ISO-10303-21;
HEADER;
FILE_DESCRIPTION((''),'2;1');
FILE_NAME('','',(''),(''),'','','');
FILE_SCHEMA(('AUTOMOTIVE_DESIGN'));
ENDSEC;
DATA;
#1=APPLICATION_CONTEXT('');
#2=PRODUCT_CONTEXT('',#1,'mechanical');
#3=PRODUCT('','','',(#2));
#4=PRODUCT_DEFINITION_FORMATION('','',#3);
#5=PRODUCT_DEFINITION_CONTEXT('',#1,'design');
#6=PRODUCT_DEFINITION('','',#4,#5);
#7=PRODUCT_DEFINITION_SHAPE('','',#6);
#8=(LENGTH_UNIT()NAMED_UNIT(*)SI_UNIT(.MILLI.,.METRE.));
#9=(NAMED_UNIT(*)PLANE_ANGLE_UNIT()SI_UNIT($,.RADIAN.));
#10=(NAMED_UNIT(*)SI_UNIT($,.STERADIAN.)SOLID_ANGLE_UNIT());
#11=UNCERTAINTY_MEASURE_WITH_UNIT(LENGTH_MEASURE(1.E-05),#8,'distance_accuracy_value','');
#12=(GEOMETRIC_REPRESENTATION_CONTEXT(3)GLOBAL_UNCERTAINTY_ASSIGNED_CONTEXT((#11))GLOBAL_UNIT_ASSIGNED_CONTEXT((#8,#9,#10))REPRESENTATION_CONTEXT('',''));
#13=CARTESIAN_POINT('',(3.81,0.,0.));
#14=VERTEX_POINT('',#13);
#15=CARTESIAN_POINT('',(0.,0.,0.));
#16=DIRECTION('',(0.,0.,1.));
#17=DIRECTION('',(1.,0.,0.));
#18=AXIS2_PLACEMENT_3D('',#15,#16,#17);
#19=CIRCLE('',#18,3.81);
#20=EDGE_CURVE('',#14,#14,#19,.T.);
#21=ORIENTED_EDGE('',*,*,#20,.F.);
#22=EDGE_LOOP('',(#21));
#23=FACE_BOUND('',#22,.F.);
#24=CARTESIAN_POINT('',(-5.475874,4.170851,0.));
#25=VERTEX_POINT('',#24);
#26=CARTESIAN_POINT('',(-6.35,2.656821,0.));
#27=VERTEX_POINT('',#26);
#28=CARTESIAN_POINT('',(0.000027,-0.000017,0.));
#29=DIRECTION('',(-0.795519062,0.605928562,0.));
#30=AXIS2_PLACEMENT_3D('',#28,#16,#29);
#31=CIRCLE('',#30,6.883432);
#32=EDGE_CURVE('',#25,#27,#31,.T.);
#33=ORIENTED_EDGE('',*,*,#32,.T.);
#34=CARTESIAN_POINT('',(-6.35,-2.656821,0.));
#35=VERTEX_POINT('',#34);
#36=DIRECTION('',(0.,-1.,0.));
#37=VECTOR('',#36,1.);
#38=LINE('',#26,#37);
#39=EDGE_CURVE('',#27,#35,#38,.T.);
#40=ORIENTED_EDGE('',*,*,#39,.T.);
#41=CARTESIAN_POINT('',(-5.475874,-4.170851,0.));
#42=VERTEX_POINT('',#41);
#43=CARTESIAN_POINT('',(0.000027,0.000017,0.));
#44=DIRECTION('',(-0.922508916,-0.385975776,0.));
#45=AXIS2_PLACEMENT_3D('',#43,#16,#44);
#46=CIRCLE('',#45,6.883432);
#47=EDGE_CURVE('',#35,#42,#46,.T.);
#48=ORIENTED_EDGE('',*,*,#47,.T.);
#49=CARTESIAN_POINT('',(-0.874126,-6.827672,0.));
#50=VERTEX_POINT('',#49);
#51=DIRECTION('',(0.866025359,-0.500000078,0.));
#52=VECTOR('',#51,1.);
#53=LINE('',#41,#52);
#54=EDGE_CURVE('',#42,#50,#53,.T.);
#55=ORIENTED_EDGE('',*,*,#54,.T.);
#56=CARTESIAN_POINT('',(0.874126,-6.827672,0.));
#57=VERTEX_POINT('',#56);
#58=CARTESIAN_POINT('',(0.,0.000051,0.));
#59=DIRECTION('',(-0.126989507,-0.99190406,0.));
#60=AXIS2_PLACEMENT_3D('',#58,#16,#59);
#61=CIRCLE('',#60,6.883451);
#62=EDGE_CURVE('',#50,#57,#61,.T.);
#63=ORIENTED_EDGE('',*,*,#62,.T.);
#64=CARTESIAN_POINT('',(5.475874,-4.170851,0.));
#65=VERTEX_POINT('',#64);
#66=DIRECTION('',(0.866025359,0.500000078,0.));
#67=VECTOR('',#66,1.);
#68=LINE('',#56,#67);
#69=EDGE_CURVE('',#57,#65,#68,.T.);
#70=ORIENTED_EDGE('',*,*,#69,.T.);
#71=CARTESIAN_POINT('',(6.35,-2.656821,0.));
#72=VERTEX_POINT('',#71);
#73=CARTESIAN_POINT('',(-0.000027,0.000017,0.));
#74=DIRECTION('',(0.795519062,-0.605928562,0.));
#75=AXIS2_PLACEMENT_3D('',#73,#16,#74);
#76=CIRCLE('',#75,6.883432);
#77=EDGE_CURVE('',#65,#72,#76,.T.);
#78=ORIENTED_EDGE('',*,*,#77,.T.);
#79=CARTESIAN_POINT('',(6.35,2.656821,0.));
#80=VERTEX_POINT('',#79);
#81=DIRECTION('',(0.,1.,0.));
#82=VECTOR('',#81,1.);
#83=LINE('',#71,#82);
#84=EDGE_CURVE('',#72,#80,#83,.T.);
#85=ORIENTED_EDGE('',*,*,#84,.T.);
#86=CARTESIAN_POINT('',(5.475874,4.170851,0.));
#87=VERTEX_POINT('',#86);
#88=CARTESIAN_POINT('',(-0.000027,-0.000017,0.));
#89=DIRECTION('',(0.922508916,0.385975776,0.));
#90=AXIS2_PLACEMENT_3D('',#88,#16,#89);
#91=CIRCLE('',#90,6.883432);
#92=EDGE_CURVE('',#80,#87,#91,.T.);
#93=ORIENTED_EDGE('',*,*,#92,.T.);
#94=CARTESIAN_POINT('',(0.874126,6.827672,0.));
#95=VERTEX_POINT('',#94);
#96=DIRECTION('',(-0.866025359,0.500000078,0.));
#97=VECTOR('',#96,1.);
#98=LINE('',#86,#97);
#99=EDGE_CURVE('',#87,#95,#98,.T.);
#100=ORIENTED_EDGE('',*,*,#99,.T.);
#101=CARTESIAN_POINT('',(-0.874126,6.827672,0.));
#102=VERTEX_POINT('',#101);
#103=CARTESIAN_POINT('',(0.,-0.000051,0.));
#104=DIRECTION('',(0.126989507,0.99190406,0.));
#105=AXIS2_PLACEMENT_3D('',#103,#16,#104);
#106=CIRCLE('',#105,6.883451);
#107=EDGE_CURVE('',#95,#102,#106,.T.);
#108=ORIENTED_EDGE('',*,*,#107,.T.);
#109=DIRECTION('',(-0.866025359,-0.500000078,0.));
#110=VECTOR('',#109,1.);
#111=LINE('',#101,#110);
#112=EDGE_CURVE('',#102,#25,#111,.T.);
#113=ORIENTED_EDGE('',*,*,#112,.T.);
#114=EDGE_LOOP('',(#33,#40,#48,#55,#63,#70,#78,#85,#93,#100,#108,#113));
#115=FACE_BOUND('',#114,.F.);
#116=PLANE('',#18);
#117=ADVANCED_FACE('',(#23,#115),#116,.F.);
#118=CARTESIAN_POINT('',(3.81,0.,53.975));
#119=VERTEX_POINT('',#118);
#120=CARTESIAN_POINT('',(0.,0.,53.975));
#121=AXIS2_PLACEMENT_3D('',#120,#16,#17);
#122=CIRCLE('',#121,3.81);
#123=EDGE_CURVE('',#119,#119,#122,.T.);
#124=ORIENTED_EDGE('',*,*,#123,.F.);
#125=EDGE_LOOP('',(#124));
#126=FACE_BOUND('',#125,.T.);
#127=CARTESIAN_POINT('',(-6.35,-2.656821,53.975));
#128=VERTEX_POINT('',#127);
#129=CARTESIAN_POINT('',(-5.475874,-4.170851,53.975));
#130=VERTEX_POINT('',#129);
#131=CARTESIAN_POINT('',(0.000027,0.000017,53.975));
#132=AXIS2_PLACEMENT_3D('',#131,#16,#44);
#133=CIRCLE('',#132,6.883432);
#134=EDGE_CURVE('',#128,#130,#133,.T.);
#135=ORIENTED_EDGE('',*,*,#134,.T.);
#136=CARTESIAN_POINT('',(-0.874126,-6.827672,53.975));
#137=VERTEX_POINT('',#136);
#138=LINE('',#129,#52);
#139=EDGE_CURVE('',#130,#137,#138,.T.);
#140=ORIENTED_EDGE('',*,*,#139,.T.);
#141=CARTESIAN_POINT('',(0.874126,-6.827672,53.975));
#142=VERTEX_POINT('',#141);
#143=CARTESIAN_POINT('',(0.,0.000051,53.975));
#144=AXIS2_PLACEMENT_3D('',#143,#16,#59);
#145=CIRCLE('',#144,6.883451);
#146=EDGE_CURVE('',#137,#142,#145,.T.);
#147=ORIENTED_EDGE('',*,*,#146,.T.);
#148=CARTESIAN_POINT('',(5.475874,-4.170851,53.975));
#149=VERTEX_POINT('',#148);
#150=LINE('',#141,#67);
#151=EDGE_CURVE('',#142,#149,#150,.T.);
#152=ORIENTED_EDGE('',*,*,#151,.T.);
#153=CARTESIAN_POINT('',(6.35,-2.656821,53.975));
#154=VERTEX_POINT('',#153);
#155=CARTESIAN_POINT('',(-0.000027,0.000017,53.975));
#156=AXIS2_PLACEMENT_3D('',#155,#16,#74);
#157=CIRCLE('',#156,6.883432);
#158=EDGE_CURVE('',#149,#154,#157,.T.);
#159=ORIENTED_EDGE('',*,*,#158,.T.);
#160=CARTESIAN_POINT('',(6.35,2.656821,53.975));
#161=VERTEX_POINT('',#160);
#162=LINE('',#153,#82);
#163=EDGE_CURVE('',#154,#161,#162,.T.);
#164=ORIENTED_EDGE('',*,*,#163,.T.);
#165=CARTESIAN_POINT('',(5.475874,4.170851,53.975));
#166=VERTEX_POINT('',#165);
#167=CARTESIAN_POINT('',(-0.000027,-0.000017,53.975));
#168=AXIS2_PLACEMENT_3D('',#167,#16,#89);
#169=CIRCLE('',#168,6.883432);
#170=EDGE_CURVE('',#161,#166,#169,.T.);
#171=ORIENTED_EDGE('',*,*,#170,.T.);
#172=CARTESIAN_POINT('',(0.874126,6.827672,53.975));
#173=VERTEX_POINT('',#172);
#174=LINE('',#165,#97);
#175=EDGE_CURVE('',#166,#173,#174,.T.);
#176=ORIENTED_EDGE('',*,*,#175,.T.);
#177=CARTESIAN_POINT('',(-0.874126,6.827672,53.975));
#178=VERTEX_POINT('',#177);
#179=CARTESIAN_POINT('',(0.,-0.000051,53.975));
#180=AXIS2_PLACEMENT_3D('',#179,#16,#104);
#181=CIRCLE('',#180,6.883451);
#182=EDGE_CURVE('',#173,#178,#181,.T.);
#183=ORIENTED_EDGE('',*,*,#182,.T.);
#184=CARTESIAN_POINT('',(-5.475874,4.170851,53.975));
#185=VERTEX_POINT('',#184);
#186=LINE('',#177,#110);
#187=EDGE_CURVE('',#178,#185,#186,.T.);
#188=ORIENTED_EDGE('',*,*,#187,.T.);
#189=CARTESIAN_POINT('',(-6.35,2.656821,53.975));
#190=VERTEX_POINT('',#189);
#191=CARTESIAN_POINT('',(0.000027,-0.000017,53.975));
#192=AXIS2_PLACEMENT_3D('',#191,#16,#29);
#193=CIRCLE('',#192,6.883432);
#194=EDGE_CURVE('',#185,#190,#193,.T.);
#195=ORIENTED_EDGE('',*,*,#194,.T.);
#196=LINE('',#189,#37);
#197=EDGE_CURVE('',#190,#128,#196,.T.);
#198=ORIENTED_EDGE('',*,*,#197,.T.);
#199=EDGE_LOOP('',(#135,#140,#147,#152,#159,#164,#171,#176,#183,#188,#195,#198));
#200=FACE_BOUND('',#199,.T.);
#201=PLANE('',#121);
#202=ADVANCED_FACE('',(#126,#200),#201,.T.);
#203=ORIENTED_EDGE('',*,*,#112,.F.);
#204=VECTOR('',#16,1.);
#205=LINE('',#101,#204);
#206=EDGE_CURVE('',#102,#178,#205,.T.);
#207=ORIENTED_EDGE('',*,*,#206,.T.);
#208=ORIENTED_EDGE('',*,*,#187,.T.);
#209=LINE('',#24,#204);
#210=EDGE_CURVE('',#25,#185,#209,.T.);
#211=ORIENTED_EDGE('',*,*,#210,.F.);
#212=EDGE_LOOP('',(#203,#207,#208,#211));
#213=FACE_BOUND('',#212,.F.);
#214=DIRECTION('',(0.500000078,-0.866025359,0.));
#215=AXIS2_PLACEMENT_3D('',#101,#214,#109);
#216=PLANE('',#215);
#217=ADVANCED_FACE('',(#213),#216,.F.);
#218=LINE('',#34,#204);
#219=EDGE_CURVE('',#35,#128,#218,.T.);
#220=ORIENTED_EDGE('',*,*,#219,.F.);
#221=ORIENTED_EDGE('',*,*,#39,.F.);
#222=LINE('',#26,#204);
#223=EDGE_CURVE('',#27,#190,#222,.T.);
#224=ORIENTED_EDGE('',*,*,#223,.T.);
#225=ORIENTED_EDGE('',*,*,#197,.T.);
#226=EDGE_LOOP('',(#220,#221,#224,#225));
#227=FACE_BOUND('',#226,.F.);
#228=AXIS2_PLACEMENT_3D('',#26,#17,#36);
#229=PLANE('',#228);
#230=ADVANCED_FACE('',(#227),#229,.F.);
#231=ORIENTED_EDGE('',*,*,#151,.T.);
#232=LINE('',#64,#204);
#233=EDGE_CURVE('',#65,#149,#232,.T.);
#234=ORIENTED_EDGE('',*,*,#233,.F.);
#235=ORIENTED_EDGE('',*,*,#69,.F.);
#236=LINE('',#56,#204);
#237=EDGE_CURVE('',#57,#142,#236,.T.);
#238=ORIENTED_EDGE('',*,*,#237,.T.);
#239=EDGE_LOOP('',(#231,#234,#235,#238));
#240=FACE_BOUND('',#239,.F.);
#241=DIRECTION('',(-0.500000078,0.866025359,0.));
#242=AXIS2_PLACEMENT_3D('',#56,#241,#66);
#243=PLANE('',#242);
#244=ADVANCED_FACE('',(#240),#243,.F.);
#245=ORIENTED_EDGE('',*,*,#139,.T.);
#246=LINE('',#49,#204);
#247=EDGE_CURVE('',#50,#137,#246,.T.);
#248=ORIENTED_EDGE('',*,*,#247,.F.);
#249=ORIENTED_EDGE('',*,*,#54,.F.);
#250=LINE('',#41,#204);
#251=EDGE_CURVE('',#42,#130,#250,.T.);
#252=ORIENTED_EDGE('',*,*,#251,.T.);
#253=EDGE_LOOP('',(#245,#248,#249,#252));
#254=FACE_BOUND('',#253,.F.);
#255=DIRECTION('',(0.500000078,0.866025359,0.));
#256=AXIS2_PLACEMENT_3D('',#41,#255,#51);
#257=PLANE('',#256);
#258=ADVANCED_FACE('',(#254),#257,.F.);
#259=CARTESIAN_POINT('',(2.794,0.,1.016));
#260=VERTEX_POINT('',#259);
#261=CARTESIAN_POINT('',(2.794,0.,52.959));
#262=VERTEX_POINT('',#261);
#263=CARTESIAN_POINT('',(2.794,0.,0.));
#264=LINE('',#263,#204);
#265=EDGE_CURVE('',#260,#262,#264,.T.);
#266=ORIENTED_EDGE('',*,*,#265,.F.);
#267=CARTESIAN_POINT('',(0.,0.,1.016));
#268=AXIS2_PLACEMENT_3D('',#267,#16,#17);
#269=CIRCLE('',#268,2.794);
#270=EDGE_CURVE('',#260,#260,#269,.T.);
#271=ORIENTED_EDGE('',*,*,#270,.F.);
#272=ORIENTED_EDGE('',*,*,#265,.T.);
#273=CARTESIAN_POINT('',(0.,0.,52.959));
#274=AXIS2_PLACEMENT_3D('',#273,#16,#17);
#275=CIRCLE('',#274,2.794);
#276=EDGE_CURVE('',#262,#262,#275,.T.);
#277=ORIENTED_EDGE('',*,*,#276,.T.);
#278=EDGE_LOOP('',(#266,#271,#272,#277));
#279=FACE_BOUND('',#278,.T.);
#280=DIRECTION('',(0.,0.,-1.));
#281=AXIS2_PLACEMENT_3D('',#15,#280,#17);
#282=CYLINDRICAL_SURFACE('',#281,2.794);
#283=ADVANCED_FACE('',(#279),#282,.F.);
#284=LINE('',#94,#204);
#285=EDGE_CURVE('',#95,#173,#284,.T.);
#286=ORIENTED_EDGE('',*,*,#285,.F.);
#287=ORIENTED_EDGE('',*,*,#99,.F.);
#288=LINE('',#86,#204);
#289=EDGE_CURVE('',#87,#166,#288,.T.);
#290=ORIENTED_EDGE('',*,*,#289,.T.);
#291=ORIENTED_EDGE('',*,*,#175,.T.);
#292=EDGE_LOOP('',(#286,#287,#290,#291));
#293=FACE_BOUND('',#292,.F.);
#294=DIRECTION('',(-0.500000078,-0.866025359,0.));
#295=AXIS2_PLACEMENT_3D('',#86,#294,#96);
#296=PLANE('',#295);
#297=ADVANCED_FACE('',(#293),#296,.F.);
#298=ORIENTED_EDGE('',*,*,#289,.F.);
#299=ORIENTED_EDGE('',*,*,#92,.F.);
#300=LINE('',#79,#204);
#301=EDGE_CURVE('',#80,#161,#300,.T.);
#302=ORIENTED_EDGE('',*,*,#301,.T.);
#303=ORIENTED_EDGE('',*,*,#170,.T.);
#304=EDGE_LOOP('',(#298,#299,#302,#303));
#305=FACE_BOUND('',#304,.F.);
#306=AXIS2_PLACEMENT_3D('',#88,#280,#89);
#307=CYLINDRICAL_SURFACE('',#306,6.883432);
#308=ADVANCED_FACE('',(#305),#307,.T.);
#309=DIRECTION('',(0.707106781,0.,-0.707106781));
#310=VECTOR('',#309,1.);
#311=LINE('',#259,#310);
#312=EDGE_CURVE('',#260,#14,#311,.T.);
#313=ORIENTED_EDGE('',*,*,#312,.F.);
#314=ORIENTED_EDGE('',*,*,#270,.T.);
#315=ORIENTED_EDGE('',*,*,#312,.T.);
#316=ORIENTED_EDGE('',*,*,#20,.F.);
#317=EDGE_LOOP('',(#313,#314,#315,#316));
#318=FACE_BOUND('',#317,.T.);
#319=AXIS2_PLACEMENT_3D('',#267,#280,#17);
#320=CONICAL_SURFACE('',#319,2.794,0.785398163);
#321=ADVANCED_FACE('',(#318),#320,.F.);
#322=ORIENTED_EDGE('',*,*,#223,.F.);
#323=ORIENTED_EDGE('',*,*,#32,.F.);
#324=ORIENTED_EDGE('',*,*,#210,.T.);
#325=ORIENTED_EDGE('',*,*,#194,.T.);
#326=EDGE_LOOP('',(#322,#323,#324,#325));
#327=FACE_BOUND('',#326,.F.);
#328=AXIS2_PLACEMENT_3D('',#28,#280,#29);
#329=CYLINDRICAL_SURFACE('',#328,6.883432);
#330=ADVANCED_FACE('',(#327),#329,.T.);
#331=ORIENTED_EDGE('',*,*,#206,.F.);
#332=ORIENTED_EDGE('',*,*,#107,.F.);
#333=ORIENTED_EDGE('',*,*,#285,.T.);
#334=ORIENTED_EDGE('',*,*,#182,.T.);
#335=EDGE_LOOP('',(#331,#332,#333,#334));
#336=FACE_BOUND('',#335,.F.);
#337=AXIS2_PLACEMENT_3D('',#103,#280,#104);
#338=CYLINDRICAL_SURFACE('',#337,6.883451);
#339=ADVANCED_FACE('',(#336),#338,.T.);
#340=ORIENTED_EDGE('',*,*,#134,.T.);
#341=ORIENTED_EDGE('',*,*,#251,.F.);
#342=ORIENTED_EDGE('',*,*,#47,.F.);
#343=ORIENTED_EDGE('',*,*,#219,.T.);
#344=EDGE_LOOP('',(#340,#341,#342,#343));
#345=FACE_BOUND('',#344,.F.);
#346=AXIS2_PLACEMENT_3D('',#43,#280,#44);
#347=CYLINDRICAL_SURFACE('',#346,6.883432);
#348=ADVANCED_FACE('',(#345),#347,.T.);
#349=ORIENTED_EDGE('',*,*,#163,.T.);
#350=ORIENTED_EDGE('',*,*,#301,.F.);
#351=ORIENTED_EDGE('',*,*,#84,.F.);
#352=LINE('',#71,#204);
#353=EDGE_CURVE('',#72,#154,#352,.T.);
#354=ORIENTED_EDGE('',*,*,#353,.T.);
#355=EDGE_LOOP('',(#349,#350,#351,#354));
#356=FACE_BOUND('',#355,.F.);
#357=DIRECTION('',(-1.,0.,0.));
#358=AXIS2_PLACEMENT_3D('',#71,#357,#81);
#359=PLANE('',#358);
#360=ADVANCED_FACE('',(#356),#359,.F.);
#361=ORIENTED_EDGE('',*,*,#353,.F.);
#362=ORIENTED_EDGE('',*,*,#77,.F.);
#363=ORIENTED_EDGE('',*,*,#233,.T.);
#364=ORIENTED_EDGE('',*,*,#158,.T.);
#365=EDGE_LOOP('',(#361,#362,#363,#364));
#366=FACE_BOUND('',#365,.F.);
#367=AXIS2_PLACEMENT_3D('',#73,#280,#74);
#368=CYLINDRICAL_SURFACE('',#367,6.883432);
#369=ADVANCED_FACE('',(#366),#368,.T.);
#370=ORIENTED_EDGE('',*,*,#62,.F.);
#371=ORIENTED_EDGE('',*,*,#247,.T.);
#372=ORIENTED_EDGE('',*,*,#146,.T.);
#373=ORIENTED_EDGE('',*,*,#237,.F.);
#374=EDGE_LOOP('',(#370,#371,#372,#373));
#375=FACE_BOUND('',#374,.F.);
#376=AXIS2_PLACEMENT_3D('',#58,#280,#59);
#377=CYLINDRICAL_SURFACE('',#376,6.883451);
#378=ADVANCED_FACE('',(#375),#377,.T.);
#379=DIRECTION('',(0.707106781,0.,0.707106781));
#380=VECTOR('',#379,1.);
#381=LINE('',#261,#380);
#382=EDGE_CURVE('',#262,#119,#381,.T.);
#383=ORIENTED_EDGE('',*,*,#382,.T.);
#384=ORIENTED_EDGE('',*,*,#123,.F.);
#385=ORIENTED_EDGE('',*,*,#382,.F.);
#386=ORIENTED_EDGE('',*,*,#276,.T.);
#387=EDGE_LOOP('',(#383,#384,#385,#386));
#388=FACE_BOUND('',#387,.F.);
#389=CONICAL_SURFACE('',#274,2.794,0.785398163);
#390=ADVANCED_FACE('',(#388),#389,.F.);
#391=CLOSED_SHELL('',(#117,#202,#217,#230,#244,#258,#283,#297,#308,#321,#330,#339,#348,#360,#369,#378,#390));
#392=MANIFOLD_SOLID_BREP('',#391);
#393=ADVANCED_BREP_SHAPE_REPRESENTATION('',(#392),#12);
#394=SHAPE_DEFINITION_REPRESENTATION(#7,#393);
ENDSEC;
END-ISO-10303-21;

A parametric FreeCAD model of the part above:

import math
import FreeCAD as App
import Part
import Sketcher
Q = App.Units.Quantity


def edges_at(feature, points):
    """Names of the edges that pass closest to the given points."""
    edges = feature.Shape.Edges
    near = lambda p: min(range(len(edges)), key=lambda i: edges[i].distToShape(Part.Vertex(*p))[0])
    return sorted({f"Edge{near(p) + 1}" for p in points})

doc = App.newDocument("Part")
params = doc.addObject("Spreadsheet::Sheet", "Params")
for row, (alias, value) in enumerate([
    ("sketch1_diameter", "0.22 in"),
    ("pad1_length", "2.125 in"),
    ("chamfer_size", "0.04 in"),
], start=1):
    params.set(f"A{row}", alias)
    params.set(f"B{row}", "=" + value)
    params.setAlias(f"B{row}", alias)

body = doc.addObject("PartDesign::Body", "Body")

# Sketch on XY plane
sketch1 = body.newObject("Sketcher::SketchObject", "Sketch")
sketch1.AttachmentSupport = (doc.getObject("XY_Plane"), [""])
sketch1.MapMode = "FlatFace"
sketch1.addGeometry(Part.LineSegment(App.Vector(6.35, -2.656821, 0), App.Vector(6.35, 2.656821, 0)), False)
sketch1.addGeometry(Part.ArcOfCircle(Part.Circle(App.Vector(-0.000027, -0.000017, 0), App.Vector(0, 0, 1), 6.883432), math.radians(22.704331), math.radians(37.29569)), False)
sketch1.addGeometry(Part.LineSegment(App.Vector(5.475874, 4.170851, 0), App.Vector(0.874126, 6.827672, 0)), False)
sketch1.addGeometry(Part.ArcOfCircle(Part.Circle(App.Vector(0, -0.000051, 0), App.Vector(0, 0, 1), 6.883451), math.radians(82.704338), math.radians(97.295662)), False)
sketch1.addGeometry(Part.LineSegment(App.Vector(-0.874126, 6.827672, 0), App.Vector(-5.475874, 4.170851, 0)), False)
sketch1.addGeometry(Part.ArcOfCircle(Part.Circle(App.Vector(0.000027, -0.000017, 0), App.Vector(0, 0, 1), 6.883432), math.radians(142.70431), math.radians(157.295669)), False)
sketch1.addGeometry(Part.LineSegment(App.Vector(-6.35, 2.656821, 0), App.Vector(-6.35, -2.656821, 0)), False)
sketch1.addGeometry(Part.ArcOfCircle(Part.Circle(App.Vector(0.000027, 0.000017, 0), App.Vector(0, 0, 1), 6.883432), math.radians(-157.295669), math.radians(-142.70431)), False)
sketch1.addGeometry(Part.LineSegment(App.Vector(-5.475874, -4.170851, 0), App.Vector(-0.874126, -6.827672, 0)), False)
sketch1.addGeometry(Part.ArcOfCircle(Part.Circle(App.Vector(0, 0.000051, 0), App.Vector(0, 0, 1), 6.883451), math.radians(-97.295662), math.radians(-82.704338)), False)
sketch1.addGeometry(Part.LineSegment(App.Vector(0.874126, -6.827672, 0), App.Vector(5.475874, -4.170851, 0)), False)
sketch1.addGeometry(Part.ArcOfCircle(Part.Circle(App.Vector(-0.000027, 0.000017, 0), App.Vector(0, 0, 1), 6.883432), math.radians(-37.29569), math.radians(-22.704331)), False)
sketch1.addGeometry(Part.Circle(App.Vector(0, 0, 0), App.Vector(0, 0, 1), 2.794), False)
sketch1.addConstraint(Sketcher.Constraint("Coincident", 0, 2, 1, 1))
sketch1.addConstraint(Sketcher.Constraint("Coincident", 1, 2, 2, 1))
sketch1.addConstraint(Sketcher.Constraint("Coincident", 2, 2, 3, 1))
sketch1.addConstraint(Sketcher.Constraint("Coincident", 3, 2, 4, 1))
sketch1.addConstraint(Sketcher.Constraint("Coincident", 4, 2, 5, 1))
sketch1.addConstraint(Sketcher.Constraint("Coincident", 5, 2, 6, 1))
sketch1.addConstraint(Sketcher.Constraint("Coincident", 6, 2, 7, 1))
sketch1.addConstraint(Sketcher.Constraint("Coincident", 7, 2, 8, 1))
sketch1.addConstraint(Sketcher.Constraint("Coincident", 8, 2, 9, 1))
sketch1.addConstraint(Sketcher.Constraint("Coincident", 9, 2, 10, 1))
sketch1.addConstraint(Sketcher.Constraint("Coincident", 10, 2, 11, 1))
sketch1.addConstraint(Sketcher.Constraint("Coincident", 11, 2, 0, 1))
sketch1.addConstraint(Sketcher.Constraint("Vertical", 0))
sketch1.addConstraint(Sketcher.Constraint("Vertical", 6))
sketch1.addConstraint(Sketcher.Constraint("Coincident", 12, 3, -1, 1))
sketch1.addConstraint(Sketcher.Constraint("Equal", 1, 5))
sketch1.addConstraint(Sketcher.Constraint("Equal", 5, 7))
sketch1.addConstraint(Sketcher.Constraint("Equal", 3, 9))
sketch1.addConstraint(Sketcher.Constraint("Equal", 7, 11))
sketch1.addConstraint(Sketcher.Constraint("Symmetric", 1, 3, 7, 3, -1, 1))
sketch1.addConstraint(Sketcher.Constraint("Symmetric", 3, 3, 9, 3, -1, 1))
sketch1.addConstraint(Sketcher.Constraint("Symmetric", 5, 3, 11, 3, -1, 1))
sketch1.addConstraint(Sketcher.Constraint("Symmetric", 1, 3, 5, 3, -2))
sketch1.addConstraint(Sketcher.Constraint("Symmetric", 2, 2, 3, 2, -2))
sketch1.addConstraint(Sketcher.Constraint("Parallel", 2, 8))
sketch1.addConstraint(Sketcher.Constraint("Parallel", 4, 10))
sketch1.addConstraint(Sketcher.Constraint("Horizontal", 1, 2, 4, 2))
sketch1.addConstraint(Sketcher.Constraint("Horizontal", 0, 2, 5, 2))
sketch1.addConstraint(Sketcher.Constraint("Horizontal", 8, 2, 9, 2))
sketch1.addConstraint(Sketcher.Constraint("Vertical", 4, 2, 7, 2))
sketch1.addConstraint(Sketcher.Constraint("Diameter", 12, Q("0.22 in")))
sketch1.addConstraint(Sketcher.Constraint("Angle", 2, Q("149.999995 deg")))
sketch1.addConstraint(Sketcher.Constraint("DistanceX", -1, 1, 0, 2, Q("0.25 in")))
sketch1.addConstraint(Sketcher.Constraint("DistanceX", 3, 2, 1, 2, Q("0.25 in")))
sketch1.addConstraint(Sketcher.Constraint("Radius", 1, 6.883432))
sketch1.addConstraint(Sketcher.Constraint("Radius", 3, 6.883451))
sketch1.addConstraint(Sketcher.Constraint("DistanceY", 5, 3, 0, 2, Q("0.1045999 in")))
sketch1.addConstraint(Sketcher.Constraint("DistanceY", 0, 1, 0, 2, 5.313642))
sketch1.addConstraint(Sketcher.Constraint("DistanceY", 3, 3, 9, 3, 0.000101))
sketch1.setExpression("Constraints[30]", "Params.sketch1_diameter")
pad1 = body.newObject("PartDesign::Pad", "Pad")
pad1.Profile = sketch1
pad1.setExpression("Length", "Params.pad1_length")
doc.recompute()

chamfer = body.newObject("PartDesign::Chamfer", "Chamfer")
chamfer.Base = (pad1, edges_at(pad1, [(-2.794, 0, 53.975), (-2.794, 0, 0)]))
chamfer.setExpression("Size", "Params.chamfer_size")

doc.recompute()
